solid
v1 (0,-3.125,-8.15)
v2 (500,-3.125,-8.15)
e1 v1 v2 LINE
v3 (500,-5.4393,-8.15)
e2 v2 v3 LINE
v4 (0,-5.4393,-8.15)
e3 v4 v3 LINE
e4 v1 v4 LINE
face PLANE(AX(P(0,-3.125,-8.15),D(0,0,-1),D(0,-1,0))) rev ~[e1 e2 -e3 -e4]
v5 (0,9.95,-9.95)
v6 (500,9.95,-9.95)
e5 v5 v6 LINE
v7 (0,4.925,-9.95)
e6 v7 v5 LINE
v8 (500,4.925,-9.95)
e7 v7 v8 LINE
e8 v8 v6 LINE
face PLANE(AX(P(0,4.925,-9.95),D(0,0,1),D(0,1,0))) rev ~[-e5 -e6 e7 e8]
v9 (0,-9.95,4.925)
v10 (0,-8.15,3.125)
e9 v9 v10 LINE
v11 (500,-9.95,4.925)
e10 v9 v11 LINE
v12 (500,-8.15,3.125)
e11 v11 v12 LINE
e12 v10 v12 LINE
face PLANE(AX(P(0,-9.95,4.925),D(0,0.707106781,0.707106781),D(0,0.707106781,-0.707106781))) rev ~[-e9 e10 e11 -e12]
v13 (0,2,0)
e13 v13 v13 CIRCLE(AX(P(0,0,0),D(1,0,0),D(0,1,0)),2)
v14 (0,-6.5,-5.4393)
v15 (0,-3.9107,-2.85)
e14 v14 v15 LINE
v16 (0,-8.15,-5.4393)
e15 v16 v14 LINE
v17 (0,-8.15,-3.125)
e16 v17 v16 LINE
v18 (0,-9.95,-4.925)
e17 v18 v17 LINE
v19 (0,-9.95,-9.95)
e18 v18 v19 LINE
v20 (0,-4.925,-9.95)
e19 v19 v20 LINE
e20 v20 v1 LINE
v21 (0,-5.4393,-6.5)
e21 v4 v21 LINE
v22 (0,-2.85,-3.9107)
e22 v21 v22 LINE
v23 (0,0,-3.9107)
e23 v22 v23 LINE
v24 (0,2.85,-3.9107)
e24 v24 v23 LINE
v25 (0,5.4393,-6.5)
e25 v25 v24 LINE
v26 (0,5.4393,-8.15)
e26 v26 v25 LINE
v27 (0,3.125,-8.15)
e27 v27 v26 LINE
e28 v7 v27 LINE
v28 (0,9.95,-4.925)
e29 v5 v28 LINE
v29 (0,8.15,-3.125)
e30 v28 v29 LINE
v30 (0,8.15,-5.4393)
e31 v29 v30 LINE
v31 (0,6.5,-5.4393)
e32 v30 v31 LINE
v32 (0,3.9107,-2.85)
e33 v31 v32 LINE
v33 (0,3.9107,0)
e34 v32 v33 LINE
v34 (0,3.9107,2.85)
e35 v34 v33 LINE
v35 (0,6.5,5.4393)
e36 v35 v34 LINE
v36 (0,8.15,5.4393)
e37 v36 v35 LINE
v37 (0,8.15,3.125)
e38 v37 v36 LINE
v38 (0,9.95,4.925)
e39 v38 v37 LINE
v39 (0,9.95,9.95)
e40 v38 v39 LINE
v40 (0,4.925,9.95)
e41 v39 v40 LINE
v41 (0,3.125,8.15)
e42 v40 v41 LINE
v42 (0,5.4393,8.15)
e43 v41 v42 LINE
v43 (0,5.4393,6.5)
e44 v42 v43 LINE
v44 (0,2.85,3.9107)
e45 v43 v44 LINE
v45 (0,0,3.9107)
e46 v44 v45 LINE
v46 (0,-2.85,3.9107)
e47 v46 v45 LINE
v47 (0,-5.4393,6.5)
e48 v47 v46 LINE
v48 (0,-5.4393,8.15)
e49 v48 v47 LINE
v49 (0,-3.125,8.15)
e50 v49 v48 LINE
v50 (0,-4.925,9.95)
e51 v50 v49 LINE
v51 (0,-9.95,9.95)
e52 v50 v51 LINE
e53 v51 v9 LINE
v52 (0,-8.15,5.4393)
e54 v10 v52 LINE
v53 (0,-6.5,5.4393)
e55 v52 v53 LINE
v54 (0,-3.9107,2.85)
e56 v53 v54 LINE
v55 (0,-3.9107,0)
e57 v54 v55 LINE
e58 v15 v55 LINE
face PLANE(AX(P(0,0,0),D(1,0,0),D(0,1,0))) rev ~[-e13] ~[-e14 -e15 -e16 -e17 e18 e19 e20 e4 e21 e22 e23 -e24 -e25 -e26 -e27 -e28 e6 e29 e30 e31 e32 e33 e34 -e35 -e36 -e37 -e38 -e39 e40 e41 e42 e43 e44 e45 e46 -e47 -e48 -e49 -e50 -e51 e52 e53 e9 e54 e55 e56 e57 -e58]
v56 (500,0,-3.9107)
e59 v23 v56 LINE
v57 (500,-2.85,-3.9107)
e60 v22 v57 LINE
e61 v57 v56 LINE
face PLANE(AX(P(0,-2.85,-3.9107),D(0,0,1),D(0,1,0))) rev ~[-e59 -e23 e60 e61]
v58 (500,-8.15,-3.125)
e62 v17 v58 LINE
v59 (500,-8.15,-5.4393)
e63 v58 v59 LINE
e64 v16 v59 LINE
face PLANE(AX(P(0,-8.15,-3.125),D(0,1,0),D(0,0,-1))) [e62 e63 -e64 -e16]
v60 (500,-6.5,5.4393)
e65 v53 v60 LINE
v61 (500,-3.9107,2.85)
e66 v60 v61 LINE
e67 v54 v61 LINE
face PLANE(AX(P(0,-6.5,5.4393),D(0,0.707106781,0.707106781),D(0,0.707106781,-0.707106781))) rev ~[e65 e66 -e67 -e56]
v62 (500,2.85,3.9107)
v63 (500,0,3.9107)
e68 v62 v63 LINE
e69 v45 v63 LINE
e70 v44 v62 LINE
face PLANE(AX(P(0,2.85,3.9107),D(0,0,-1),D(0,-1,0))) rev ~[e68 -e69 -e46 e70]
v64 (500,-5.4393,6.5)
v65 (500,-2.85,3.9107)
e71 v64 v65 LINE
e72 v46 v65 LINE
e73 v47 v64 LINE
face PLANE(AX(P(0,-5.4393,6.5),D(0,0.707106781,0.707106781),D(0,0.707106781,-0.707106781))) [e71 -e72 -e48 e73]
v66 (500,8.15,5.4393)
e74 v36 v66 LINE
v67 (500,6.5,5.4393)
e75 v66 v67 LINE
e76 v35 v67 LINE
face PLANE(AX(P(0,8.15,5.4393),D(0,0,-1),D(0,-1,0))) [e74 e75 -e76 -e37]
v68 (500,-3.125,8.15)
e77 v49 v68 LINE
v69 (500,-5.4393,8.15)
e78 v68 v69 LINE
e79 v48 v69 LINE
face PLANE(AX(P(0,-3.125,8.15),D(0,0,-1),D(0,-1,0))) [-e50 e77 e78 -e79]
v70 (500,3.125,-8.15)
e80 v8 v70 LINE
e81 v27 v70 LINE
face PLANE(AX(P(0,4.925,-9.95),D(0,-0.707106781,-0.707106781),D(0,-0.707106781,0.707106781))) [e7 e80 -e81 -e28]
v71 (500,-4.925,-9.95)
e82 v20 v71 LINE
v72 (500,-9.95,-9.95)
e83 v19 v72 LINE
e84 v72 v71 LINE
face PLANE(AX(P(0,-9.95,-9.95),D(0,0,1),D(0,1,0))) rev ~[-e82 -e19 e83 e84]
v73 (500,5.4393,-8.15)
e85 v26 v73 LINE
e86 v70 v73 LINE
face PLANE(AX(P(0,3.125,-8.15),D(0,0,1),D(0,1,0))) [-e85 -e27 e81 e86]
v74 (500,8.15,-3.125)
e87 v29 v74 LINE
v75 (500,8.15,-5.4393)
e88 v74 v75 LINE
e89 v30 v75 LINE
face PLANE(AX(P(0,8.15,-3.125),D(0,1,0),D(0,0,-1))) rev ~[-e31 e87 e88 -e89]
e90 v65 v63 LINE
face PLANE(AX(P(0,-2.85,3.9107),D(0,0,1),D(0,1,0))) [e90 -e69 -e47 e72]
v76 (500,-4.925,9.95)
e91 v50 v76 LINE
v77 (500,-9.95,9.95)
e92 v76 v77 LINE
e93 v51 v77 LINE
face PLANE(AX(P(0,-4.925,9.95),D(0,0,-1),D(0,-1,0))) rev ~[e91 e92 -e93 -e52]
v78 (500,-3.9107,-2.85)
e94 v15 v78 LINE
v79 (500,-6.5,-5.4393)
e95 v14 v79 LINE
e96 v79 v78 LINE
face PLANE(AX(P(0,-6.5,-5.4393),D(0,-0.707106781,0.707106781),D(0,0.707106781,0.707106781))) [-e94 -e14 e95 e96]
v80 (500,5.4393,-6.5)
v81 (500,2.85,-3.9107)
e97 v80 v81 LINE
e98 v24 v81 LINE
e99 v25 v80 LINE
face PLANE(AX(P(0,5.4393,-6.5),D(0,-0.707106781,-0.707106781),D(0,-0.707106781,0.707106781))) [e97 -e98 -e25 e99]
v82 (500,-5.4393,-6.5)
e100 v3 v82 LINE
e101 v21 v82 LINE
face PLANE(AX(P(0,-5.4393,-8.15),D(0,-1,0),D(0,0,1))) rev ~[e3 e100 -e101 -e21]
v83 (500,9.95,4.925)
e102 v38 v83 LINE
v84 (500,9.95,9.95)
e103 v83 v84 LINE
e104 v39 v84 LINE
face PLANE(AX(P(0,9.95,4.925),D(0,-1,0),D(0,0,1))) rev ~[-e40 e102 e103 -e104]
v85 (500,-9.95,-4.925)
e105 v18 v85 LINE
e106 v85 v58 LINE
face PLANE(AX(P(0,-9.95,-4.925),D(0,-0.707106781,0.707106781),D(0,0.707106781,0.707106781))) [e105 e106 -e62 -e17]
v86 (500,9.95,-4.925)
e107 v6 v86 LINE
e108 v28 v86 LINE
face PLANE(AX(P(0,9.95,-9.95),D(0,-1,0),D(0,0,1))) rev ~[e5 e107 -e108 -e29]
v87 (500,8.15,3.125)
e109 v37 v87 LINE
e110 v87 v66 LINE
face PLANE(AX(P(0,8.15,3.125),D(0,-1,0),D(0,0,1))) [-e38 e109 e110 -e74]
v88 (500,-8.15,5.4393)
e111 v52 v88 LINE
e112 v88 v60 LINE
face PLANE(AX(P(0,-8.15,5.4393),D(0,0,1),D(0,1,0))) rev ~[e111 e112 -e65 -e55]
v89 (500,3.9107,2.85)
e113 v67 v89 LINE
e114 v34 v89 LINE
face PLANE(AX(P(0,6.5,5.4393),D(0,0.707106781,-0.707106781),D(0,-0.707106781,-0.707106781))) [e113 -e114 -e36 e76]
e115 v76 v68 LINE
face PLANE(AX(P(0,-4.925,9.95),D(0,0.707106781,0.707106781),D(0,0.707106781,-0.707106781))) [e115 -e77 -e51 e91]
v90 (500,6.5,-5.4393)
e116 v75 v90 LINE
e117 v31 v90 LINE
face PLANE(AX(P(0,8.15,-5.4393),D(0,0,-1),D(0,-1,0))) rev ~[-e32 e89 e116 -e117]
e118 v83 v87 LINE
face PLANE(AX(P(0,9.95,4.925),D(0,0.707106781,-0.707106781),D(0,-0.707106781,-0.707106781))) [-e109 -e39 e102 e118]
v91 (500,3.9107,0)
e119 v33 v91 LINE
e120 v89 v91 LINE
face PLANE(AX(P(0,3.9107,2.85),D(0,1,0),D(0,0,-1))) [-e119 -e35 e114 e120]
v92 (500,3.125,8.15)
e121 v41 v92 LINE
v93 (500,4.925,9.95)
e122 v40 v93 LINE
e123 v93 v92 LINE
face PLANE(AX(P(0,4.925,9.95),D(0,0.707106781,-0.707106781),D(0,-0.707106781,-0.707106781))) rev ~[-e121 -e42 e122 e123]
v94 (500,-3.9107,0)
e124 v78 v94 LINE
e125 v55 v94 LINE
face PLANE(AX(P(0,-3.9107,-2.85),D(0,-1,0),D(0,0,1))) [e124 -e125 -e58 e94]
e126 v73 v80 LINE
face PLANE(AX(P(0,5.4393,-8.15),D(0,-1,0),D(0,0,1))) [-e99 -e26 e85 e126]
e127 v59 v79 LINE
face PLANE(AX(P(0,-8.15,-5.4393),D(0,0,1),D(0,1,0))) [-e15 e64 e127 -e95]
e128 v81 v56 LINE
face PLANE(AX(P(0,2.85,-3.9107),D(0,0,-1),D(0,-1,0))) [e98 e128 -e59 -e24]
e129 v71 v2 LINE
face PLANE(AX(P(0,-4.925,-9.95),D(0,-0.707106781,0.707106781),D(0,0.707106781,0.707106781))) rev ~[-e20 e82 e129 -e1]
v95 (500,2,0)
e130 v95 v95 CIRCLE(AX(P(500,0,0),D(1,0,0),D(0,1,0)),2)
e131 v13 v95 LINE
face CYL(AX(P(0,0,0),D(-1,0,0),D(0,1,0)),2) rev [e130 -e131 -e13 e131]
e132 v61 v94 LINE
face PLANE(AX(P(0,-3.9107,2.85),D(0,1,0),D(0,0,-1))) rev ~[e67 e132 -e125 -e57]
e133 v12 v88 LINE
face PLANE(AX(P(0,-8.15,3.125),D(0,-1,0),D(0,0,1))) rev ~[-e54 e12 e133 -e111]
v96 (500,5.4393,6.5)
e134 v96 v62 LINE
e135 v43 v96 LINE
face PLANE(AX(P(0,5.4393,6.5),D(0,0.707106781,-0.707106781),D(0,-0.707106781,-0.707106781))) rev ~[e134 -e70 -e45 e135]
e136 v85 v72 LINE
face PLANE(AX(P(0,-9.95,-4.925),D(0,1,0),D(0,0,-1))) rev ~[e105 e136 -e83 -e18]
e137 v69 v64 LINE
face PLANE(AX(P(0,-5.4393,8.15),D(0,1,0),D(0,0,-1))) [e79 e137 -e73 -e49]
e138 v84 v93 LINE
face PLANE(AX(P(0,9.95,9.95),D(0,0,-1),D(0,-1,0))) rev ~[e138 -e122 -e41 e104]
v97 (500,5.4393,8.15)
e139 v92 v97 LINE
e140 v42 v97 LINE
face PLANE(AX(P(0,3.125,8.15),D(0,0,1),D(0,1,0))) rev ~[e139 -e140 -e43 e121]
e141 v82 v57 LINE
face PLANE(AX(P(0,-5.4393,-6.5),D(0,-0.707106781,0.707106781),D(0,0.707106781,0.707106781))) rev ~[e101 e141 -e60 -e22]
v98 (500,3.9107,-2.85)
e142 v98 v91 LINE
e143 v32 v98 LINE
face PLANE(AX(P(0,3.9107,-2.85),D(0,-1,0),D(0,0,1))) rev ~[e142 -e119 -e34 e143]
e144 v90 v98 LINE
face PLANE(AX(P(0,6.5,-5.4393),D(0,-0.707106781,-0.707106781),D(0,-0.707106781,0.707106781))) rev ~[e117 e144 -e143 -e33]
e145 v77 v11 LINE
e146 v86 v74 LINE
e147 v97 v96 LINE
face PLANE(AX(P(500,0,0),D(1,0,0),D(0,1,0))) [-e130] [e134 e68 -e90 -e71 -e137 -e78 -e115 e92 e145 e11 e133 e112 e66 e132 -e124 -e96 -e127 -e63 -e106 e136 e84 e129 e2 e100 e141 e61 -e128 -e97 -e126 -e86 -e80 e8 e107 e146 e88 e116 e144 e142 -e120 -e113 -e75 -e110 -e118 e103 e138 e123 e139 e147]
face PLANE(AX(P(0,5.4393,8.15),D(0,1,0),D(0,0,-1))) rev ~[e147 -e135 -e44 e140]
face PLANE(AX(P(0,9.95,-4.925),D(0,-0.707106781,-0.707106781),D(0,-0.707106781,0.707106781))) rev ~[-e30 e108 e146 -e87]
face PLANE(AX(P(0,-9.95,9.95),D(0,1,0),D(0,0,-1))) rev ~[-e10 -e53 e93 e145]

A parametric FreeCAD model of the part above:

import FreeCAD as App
import Part
import Sketcher
from FreeCAD import Vector

doc = App.newDocument("Part")
body = doc.addObject("PartDesign::Body", "Body")

sketch1 = body.newObject("Sketcher::SketchObject", "Sketch")
sketch1.AttachmentSupport = (doc.getObject("YZ_Plane"), [""])
sketch1.MapMode = "FlatFace"
sketch1.addGeometry([
    Part.LineSegment(Vector(8.2, 3.1, 0), Vector(9.9, 4.9, 0)),
    Part.LineSegment(Vector(9.9, 4.9, 0), Vector(9.9, 9.9, 0)),
    Part.LineSegment(Vector(9.9, 9.9, 0), Vector(4.9, 9.9, 0)),
    Part.LineSegment(Vector(4.9, 9.9, 0), Vector(3.1, 8.2, 0)),
    Part.LineSegment(Vector(3.1, 8.2, 0), Vector(5.4, 8.2, 0)),
    Part.LineSegment(Vector(5.4, 8.2, 0), Vector(5.4, 6.5, 0)),
    Part.LineSegment(Vector(5.4, 6.5, 0), Vector(2.9, 3.9, 0)),
    Part.LineSegment(Vector(2.9, 3.9, 0), Vector(-2.9, 3.9, 0)),
    Part.LineSegment(Vector(-2.9, 3.9, 0), Vector(-5.4, 6.5, 0)),
    Part.LineSegment(Vector(-5.4, 6.5, 0), Vector(-5.4, 8.2, 0)),
    Part.LineSegment(Vector(-5.4, 8.2, 0), Vector(-3.1, 8.2, 0)),
    Part.LineSegment(Vector(-3.1, 8.2, 0), Vector(-4.9, 9.9, 0)),
    Part.LineSegment(Vector(-4.9, 9.9, 0), Vector(-9.9, 9.9, 0)),
    Part.LineSegment(Vector(-9.9, 9.9, 0), Vector(-9.9, 4.9, 0)),
    Part.LineSegment(Vector(-9.9, 4.9, 0), Vector(-8.2, 3.1, 0)),
    Part.LineSegment(Vector(-8.2, 3.1, 0), Vector(-8.2, 5.4, 0)),
    Part.LineSegment(Vector(-8.2, 5.4, 0), Vector(-6.5, 5.4, 0)),
    Part.LineSegment(Vector(-6.5, 5.4, 0), Vector(-3.9, 2.9, 0)),
    Part.LineSegment(Vector(-3.9, 2.9, 0), Vector(-3.9, -2.9, 0)),
    Part.LineSegment(Vector(-3.9, -2.9, 0), Vector(-6.5, -5.4, 0)),
    Part.LineSegment(Vector(-6.5, -5.4, 0), Vector(-8.2, -5.4, 0)),
    Part.LineSegment(Vector(-8.2, -5.4, 0), Vector(-8.2, -3.1, 0)),
    Part.LineSegment(Vector(-8.2, -3.1, 0), Vector(-9.9, -4.9, 0)),
    Part.LineSegment(Vector(-9.9, -4.9, 0), Vector(-9.9, -9.9, 0)),
    Part.LineSegment(Vector(-9.9, -9.9, 0), Vector(-4.9, -9.9, 0)),
    Part.LineSegment(Vector(-4.9, -9.9, 0), Vector(-3.1, -8.2, 0)),
    Part.LineSegment(Vector(-3.1, -8.2, 0), Vector(-5.4, -8.2, 0)),
    Part.LineSegment(Vector(-5.4, -8.2, 0), Vector(-5.4, -6.5, 0)),
    Part.LineSegment(Vector(-5.4, -6.5, 0), Vector(-2.9, -3.9, 0)),
    Part.LineSegment(Vector(-2.9, -3.9, 0), Vector(2.9, -3.9, 0)),
    Part.LineSegment(Vector(2.9, -3.9, 0), Vector(5.4, -6.5, 0)),
    Part.LineSegment(Vector(5.4, -6.5, 0), Vector(5.4, -8.2, 0)),
    Part.LineSegment(Vector(5.4, -8.2, 0), Vector(3.1, -8.2, 0)),
    Part.LineSegment(Vector(3.1, -8.2, 0), Vector(4.9, -9.9, 0)),
    Part.LineSegment(Vector(4.9, -9.9, 0), Vector(9.9, -9.9, 0)),
    Part.LineSegment(Vector(9.9, -9.9, 0), Vector(9.9, -4.9, 0)),
    Part.LineSegment(Vector(9.9, -4.9, 0), Vector(8.2, -3.1, 0)),
    Part.LineSegment(Vector(8.2, -3.1, 0), Vector(8.2, -5.4, 0)),
    Part.LineSegment(Vector(8.2, -5.4, 0), Vector(6.5, -5.4, 0)),
    Part.LineSegment(Vector(6.5, -5.4, 0), Vector(3.9, -2.9, 0)),
    Part.LineSegment(Vector(3.9, -2.9, 0), Vector(3.9, 2.9, 0)),
    Part.LineSegment(Vector(3.9, 2.9, 0), Vector(6.5, 5.4, 0)),
    Part.LineSegment(Vector(6.5, 5.4, 0), Vector(8.2, 5.4, 0)),
    Part.LineSegment(Vector(8.2, 5.4, 0), Vector(8.2, 3.1, 0)),
    Part.Circle(Vector(0, 0, 0), Vector(0, 0, 1), 2),
], False)
sketch1.addConstraint([
    Sketcher.Constraint("Coincident", 0, 2, 1, 1),
    Sketcher.Constraint("Coincident", 1, 2, 2, 1),
    Sketcher.Constraint("Coincident", 2, 2, 3, 1),
    Sketcher.Constraint("Coincident", 3, 2, 4, 1),
    Sketcher.Constraint("Coincident", 4, 2, 5, 1),
    Sketcher.Constraint("Coincident", 5, 2, 6, 1),
    Sketcher.Constraint("Coincident", 6, 2, 7, 1),
    Sketcher.Constraint("Coincident", 7, 2, 8, 1),
    Sketcher.Constraint("Coincident", 8, 2, 9, 1),
    Sketcher.Constraint("Coincident", 9, 2, 10, 1),
    Sketcher.Constraint("Coincident", 10, 2, 11, 1),
    Sketcher.Constraint("Coincident", 11, 2, 12, 1),
    Sketcher.Constraint("Coincident", 12, 2, 13, 1),
    Sketcher.Constraint("Coincident", 13, 2, 14, 1),
    Sketcher.Constraint("Coincident", 14, 2, 15, 1),
    Sketcher.Constraint("Coincident", 15, 2, 16, 1),
    Sketcher.Constraint("Coincident", 16, 2, 17, 1),
    Sketcher.Constraint("Coincident", 17, 2, 18, 1),
    Sketcher.Constraint("Coincident", 18, 2, 19, 1),
    Sketcher.Constraint("Coincident", 19, 2, 20, 1),
    Sketcher.Constraint("Coincident", 20, 2, 21, 1),
    Sketcher.Constraint("Coincident", 21, 2, 22, 1),
    Sketcher.Constraint("Coincident", 22, 2, 23, 1),
    Sketcher.Constraint("Coincident", 23, 2, 24, 1),
    Sketcher.Constraint("Coincident", 24, 2, 25, 1),
    Sketcher.Constraint("Coincident", 25, 2, 26, 1),
    Sketcher.Constraint("Coincident", 26, 2, 27, 1),
    Sketcher.Constraint("Coincident", 27, 2, 28, 1),
    Sketcher.Constraint("Coincident", 28, 2, 29, 1),
    Sketcher.Constraint("Coincident", 29, 2, 30, 1),
    Sketcher.Constraint("Coincident", 30, 2, 31, 1),
    Sketcher.Constraint("Coincident", 31, 2, 32, 1),
    Sketcher.Constraint("Coincident", 32, 2, 33, 1),
    Sketcher.Constraint("Coincident", 33, 2, 34, 1),
    Sketcher.Constraint("Coincident", 34, 2, 35, 1),
    Sketcher.Constraint("Coincident", 35, 2, 36, 1),
    Sketcher.Constraint("Coincident", 36, 2, 37, 1),
    Sketcher.Constraint("Coincident", 37, 2, 38, 1),
    Sketcher.Constraint("Coincident", 38, 2, 39, 1),
    Sketcher.Constraint("Coincident", 39, 2, 40, 1),
    Sketcher.Constraint("Coincident", 40, 2, 41, 1),
    Sketcher.Constraint("Coincident", 41, 2, 42, 1),
    Sketcher.Constraint("Coincident", 42, 2, 43, 1),
    Sketcher.Constraint("Coincident", 43, 2, 0, 1),
    Sketcher.Constraint("Vertical", 1),
    Sketcher.Constraint("Horizontal", 2),
    Sketcher.Constraint("Horizontal", 4),
    Sketcher.Constraint("Vertical", 5),
    Sketcher.Constraint("Horizontal", 7),
    Sketcher.Constraint("Vertical", 9),
    Sketcher.Constraint("Horizontal", 10),
    Sketcher.Constraint("Horizontal", 12),
    Sketcher.Constraint("Vertical", 13),
    Sketcher.Constraint("Vertical", 15),
    Sketcher.Constraint("Horizontal", 16),
    Sketcher.Constraint("Vertical", 18),
    Sketcher.Constraint("Horizontal", 20),
    Sketcher.Constraint("Vertical", 21),
    Sketcher.Constraint("Vertical", 23),
    Sketcher.Constraint("Horizontal", 24),
    Sketcher.Constraint("Horizontal", 26),
    Sketcher.Constraint("Vertical", 27),
    Sketcher.Constraint("Horizontal", 29),
    Sketcher.Constraint("Vertical", 31),
    Sketcher.Constraint("Horizontal", 32),
    Sketcher.Constraint("Horizontal", 34),
    Sketcher.Constraint("Vertical", 35),
    Sketcher.Constraint("Vertical", 37),
    Sketcher.Constraint("Horizontal", 38),
    Sketcher.Constraint("Vertical", 40),
    Sketcher.Constraint("Horizontal", 42),
    Sketcher.Constraint("Vertical", 43),
    Sketcher.Constraint("Coincident", 44, 3, -1, 1),
    Sketcher.Constraint("Symmetric", 0, 2, 22, 2, -1, 1),
    Sketcher.Constraint("Symmetric", 2, 2, 24, 2, -1, 1),
    Sketcher.Constraint("Symmetric", 3, 2, 25, 2, -1, 1),
    Sketcher.Constraint("Symmetric", 5, 2, 27, 2, -1, 1),
    Sketcher.Constraint("Symmetric", 6, 2, 28, 2, -1, 1),
    Sketcher.Constraint("Symmetric", 8, 2, 30, 2, -1, 1),
    Sketcher.Constraint("Symmetric", 10, 2, 32, 2, -1, 1),
    Sketcher.Constraint("Symmetric", 11, 2, 33, 2, -1, 1),
    Sketcher.Constraint("Symmetric", 13, 2, 35, 2, -1, 1),
    Sketcher.Constraint("Symmetric", 14, 2, 36, 2, -1, 1),
    Sketcher.Constraint("Symmetric", 16, 2, 38, 2, -1, 1),
    Sketcher.Constraint("Symmetric", 17, 2, 39, 2, -1, 1),
    Sketcher.Constraint("Symmetric", 19, 2, 41, 2, -1, 1),
    Sketcher.Constraint("Symmetric", 21, 2, 43, 2, -1, 1),
    Sketcher.Constraint("Symmetric", 5, 2, 8, 2, -2),
    Sketcher.Constraint("Symmetric", 3, 2, 10, 2, -2),
    Sketcher.Constraint("Symmetric", 2, 2, 11, 2, -2),
    Sketcher.Constraint("Symmetric", 0, 2, 13, 2, -2),
    Sketcher.Constraint("Symmetric", 21, 2, 36, 2, -2),
    Sketcher.Constraint("Symmetric", 19, 2, 38, 2, -2),
    Sketcher.Constraint("Parallel", 0, 3),
    Sketcher.Constraint("Parallel", 3, 6),
    Sketcher.Constraint("Perpendicular", 6, 8),
    Sketcher.Constraint("Parallel", 8, 11),
    Sketcher.Constraint("Parallel", 14, 17),
    Sketcher.Constraint("Perpendicular", 17, 19),
    Sketcher.Constraint("Perpendicular", 28, 30),
    Sketcher.Constraint("Perpendicular", 39, 41),
    Sketcher.Constraint("Equal", 34, 1),
    Sketcher.Constraint("Equal", 42, 5),
    Sketcher.Constraint("Equal", 32, 15),
    Sketcher.Constraint("Equal", 29, 18),
    Sketcher.Constraint("Equal", 0, 3),
    Sketcher.Constraint("Equal", 8, 17),
    Sketcher.Constraint("Diameter", 44, 4.0),
    Sketcher.Constraint("DistanceX", 7, 2, 7, 1, 5.7),
    Sketcher.Constraint("DistanceX", 16, 1, 16, 2, 1.65),
    Sketcher.Constraint("DistanceX", 3, 2, 2, 2, 1.8),
    Sketcher.Constraint("DistanceX", 10, 2, 3, 2, 6.25),
    Sketcher.Constraint("DistanceY", -1, 1, 5, 2, 6.5),
    Sketcher.Constraint("DistanceX", 4, 1, 4, 2, 2.3143),
])
pad1 = body.newObject("PartDesign::Pad", "Pad")
pad1.Profile = sketch1
pad1.Length = 500

doc.recompute()
